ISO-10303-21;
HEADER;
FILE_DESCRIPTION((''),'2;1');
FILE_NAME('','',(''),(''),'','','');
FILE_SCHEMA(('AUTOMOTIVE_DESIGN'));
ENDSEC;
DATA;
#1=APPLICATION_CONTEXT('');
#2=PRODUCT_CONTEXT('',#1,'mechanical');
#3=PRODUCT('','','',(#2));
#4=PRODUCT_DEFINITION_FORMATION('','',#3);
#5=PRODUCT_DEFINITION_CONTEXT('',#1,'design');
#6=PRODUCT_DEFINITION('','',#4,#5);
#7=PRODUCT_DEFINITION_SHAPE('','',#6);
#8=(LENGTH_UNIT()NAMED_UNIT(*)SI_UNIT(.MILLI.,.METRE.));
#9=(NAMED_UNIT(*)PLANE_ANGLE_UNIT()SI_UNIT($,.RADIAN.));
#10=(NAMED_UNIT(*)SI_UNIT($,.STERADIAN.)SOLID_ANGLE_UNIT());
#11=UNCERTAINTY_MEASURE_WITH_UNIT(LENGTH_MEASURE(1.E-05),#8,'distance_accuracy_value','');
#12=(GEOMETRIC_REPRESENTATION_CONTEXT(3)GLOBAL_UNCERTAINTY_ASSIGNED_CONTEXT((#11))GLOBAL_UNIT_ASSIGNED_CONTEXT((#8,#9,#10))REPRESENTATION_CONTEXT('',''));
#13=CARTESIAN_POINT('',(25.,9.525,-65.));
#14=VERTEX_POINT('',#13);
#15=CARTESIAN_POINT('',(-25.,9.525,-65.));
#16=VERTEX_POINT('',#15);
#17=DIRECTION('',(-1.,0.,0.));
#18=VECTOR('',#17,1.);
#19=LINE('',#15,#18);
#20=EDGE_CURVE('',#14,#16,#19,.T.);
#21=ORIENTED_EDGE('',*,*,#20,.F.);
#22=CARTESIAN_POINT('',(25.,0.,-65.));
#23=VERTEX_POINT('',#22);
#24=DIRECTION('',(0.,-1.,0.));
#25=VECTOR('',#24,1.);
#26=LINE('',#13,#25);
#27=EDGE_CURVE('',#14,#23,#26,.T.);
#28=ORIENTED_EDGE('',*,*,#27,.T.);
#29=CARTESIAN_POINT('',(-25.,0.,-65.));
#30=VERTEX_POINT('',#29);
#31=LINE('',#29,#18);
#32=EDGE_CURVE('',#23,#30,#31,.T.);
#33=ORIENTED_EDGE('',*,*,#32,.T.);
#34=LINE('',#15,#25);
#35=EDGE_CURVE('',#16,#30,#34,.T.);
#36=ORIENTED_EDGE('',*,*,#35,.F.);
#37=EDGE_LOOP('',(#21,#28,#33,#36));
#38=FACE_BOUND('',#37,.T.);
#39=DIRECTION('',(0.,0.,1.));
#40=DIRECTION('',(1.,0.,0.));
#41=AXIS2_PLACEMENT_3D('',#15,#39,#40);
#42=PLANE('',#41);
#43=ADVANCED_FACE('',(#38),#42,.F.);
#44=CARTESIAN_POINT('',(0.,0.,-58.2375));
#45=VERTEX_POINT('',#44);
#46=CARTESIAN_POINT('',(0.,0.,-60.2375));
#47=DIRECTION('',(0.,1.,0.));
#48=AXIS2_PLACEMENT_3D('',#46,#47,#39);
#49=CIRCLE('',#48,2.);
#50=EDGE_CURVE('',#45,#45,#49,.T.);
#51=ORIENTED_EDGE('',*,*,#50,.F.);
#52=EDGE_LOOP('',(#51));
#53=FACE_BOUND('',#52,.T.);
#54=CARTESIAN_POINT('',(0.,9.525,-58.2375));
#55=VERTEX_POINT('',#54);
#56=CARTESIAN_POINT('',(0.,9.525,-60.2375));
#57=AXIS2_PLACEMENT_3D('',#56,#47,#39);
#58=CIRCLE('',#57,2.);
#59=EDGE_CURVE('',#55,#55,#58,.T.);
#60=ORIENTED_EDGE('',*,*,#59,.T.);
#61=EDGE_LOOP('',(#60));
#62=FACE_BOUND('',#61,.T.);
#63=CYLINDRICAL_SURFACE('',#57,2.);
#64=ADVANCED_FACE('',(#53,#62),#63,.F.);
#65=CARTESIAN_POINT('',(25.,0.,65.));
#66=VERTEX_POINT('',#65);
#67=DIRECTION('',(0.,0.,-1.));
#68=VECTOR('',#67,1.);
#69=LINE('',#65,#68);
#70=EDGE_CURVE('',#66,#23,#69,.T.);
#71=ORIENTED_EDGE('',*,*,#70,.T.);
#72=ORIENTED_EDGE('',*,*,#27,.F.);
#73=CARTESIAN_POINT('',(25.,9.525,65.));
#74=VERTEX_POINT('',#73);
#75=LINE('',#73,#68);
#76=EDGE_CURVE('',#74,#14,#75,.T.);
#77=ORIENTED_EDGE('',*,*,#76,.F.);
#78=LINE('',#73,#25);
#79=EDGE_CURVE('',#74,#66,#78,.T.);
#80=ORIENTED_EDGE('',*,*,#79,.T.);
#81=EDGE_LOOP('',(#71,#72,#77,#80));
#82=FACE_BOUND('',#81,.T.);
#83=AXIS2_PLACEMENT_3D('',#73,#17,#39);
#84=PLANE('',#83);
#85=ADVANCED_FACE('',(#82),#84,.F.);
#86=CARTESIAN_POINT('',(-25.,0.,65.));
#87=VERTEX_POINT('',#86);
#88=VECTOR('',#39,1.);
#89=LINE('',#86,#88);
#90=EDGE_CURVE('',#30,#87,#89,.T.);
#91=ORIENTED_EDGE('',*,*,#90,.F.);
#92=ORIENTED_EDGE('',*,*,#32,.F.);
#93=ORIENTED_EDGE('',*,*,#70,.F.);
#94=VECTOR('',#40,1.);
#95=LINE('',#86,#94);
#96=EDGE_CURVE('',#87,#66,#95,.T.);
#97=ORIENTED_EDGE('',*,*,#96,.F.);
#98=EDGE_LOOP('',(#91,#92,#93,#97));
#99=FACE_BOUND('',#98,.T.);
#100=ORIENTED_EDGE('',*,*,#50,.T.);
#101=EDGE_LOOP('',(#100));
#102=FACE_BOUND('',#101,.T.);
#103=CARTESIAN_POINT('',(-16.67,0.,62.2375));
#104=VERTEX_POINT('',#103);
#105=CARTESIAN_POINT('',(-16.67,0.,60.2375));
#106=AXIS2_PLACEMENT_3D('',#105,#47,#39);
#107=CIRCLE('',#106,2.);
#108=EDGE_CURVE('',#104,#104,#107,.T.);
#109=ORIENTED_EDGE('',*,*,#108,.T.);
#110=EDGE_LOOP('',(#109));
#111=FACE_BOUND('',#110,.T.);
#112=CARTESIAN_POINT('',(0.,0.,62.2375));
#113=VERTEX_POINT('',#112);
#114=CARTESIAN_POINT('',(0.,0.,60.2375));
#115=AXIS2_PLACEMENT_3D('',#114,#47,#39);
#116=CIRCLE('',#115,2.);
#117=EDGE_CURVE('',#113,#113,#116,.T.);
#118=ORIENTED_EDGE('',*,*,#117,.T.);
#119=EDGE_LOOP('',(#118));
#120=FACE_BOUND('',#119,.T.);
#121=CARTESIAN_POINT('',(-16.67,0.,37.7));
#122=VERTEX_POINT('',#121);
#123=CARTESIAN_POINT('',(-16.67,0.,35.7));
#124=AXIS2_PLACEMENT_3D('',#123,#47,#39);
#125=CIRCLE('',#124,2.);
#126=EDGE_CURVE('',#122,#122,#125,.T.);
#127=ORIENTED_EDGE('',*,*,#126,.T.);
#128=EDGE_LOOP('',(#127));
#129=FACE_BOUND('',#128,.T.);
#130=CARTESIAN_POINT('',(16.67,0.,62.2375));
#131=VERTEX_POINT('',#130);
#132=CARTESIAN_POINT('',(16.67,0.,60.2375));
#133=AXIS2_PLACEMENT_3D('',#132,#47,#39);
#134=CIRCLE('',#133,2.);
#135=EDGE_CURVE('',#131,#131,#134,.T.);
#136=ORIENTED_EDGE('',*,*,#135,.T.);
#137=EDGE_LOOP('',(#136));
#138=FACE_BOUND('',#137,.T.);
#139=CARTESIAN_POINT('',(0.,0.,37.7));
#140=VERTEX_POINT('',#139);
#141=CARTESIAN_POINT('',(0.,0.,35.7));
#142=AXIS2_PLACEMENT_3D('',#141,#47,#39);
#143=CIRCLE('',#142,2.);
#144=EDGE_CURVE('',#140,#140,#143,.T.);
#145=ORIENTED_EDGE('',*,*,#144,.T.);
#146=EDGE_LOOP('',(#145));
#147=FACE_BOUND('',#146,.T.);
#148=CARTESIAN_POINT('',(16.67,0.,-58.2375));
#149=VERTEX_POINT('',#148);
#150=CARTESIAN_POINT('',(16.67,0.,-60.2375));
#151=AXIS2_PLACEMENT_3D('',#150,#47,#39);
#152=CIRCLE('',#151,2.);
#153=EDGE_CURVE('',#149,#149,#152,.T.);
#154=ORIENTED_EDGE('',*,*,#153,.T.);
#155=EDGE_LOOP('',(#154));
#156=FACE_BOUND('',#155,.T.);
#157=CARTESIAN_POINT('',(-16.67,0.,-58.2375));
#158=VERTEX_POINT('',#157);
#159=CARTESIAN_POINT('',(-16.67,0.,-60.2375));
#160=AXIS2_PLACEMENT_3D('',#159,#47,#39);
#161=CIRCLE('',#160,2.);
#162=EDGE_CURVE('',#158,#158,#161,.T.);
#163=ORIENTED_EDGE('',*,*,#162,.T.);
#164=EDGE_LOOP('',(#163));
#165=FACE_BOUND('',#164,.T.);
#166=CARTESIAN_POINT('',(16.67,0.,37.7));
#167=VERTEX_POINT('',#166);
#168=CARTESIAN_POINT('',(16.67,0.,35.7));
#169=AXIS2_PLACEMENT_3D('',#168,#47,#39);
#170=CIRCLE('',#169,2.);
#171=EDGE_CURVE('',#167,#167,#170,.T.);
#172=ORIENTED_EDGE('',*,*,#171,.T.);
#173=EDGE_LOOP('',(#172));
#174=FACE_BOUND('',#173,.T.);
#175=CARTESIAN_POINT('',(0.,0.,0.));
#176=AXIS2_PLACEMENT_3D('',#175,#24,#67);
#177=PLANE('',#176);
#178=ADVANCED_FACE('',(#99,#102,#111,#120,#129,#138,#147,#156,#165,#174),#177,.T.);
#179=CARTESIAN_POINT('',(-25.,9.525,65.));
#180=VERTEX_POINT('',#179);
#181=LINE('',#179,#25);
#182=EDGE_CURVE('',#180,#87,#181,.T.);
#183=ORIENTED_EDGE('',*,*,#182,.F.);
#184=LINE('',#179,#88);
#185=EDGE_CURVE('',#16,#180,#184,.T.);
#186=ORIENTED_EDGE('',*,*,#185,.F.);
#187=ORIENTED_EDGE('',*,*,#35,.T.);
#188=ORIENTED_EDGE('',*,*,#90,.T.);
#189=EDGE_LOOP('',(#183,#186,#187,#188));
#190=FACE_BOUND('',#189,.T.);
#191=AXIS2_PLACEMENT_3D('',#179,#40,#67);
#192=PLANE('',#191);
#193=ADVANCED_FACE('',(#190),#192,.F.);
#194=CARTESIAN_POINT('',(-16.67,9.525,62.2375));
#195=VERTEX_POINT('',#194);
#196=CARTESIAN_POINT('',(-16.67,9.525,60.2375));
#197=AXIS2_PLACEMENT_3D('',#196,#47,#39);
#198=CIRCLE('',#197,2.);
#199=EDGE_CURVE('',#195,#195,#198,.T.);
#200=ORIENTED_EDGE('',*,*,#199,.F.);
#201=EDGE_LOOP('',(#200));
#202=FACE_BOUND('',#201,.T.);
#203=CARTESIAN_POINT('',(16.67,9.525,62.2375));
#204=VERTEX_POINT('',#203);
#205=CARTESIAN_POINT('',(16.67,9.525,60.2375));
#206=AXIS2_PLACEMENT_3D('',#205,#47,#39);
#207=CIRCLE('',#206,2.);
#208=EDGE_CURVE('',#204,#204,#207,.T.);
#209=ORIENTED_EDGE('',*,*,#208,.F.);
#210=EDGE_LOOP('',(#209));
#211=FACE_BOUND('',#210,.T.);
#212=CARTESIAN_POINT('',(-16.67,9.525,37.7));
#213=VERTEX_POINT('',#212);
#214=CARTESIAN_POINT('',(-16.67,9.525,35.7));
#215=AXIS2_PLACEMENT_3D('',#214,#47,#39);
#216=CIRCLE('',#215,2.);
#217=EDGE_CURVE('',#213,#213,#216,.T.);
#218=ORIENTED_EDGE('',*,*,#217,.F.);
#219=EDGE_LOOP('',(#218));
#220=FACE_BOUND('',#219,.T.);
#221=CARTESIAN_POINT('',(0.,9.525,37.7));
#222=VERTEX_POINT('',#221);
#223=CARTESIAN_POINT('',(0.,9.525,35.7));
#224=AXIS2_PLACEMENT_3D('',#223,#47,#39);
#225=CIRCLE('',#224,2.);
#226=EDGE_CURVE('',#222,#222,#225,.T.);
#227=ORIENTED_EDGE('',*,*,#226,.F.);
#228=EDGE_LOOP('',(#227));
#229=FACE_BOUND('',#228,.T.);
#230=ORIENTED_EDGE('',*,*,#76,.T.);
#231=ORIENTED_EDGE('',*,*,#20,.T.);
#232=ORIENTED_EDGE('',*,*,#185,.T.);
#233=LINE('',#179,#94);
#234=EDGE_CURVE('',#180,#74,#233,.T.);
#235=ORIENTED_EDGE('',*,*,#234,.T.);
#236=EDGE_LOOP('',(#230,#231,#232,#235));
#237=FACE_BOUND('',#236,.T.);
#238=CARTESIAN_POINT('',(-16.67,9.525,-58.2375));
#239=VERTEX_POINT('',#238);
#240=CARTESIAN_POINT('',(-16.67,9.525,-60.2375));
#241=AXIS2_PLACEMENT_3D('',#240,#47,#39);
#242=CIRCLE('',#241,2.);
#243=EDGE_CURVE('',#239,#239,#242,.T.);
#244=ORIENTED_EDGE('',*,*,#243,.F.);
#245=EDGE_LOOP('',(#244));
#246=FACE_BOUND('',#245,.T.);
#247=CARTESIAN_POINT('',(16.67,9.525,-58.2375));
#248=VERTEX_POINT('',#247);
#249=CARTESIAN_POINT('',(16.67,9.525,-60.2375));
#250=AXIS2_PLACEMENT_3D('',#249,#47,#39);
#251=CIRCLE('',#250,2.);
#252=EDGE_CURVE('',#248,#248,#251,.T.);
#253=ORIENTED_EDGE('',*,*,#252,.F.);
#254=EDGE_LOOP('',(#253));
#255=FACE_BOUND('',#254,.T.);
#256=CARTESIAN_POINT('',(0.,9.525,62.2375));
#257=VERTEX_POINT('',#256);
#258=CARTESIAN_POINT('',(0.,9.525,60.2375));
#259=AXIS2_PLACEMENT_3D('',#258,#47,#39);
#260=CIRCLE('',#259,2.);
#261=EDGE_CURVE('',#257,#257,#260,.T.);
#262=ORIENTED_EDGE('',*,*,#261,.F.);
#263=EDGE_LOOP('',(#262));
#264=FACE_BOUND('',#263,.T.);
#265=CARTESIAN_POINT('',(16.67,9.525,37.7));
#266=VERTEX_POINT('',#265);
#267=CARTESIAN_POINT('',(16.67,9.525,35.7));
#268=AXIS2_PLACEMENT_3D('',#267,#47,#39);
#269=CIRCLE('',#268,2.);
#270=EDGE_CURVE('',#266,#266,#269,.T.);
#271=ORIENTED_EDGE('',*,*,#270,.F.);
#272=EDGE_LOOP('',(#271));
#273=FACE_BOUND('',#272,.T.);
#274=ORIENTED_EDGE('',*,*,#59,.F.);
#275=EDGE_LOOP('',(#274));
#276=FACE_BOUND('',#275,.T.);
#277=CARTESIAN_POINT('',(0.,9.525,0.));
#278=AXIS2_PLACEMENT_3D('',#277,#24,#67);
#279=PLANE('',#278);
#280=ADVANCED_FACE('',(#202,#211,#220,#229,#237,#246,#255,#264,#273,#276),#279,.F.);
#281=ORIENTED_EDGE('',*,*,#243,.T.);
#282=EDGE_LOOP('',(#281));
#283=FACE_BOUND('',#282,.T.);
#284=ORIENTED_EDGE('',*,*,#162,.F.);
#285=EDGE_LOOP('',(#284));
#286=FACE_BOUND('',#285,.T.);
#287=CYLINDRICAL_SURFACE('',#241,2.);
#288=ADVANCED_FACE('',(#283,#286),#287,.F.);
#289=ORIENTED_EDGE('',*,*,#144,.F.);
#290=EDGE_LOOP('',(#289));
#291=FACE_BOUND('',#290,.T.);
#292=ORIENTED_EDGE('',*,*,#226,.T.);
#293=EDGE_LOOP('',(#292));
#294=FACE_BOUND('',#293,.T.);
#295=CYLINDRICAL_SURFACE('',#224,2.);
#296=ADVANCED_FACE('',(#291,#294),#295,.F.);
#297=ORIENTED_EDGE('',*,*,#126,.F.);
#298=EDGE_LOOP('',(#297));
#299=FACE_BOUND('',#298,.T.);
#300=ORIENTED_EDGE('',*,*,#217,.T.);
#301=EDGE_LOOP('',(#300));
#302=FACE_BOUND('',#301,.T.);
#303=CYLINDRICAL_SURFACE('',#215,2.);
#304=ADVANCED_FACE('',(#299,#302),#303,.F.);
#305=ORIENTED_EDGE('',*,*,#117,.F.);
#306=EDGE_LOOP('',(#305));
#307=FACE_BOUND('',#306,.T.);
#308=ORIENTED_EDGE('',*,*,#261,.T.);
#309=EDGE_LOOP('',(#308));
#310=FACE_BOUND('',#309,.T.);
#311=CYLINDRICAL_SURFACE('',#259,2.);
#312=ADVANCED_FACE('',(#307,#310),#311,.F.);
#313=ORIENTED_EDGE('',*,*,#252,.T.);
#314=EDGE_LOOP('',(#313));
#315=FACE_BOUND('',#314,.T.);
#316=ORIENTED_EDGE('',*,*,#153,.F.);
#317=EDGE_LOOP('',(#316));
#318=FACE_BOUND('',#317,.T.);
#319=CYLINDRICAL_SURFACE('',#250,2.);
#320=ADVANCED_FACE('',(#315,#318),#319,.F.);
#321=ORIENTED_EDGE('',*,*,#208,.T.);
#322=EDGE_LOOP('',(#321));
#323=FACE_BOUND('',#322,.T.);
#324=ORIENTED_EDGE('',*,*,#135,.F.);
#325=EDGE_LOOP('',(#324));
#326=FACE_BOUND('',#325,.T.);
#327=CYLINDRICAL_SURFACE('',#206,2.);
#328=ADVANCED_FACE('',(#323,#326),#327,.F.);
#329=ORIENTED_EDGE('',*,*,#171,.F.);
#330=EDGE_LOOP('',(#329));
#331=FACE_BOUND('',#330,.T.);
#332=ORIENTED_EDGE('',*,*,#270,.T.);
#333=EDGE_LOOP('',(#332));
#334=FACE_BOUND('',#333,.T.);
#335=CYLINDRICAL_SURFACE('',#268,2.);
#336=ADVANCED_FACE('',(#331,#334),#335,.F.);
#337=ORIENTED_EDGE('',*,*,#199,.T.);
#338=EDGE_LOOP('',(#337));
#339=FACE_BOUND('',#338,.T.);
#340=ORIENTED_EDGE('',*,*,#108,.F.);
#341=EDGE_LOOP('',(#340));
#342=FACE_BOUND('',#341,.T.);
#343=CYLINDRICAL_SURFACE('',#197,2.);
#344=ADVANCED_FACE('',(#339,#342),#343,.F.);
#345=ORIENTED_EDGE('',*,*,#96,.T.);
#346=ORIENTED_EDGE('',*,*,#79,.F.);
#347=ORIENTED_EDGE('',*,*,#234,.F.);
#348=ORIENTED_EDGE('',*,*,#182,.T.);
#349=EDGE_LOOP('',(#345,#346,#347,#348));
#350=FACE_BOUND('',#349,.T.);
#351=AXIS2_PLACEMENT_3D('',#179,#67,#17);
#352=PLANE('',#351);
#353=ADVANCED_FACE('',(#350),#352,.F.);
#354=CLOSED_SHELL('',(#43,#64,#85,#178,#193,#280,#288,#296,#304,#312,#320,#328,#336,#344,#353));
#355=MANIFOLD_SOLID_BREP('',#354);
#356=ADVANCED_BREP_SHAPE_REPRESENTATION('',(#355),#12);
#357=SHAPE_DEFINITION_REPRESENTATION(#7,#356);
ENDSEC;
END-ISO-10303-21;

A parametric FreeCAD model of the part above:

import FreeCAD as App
import Part
import Sketcher
from FreeCAD import Vector
Q = App.Units.Quantity


def add_polygon(sketch, points):
    """Adds a closed chain of lines whose ends are joined by coincident constraints."""
    first, n = sketch.GeometryCount, len(points)
    for a, b in zip(points, points[1:] + points[:1]):
        sketch.addGeometry(Part.LineSegment(App.Vector(*a, 0), App.Vector(*b, 0)), False)
    for i in range(n):
        sketch.addConstraint(Sketcher.Constraint("Coincident", first + i, 2, first + (i + 1) % n, 1))

doc = App.newDocument("Part")
params = doc.addObject("Spreadsheet::Sheet", "Params")
for row, (alias, value) in enumerate([
    ("sketch1_width", "50 mm"),
    ("sketch1_height", "130 mm"),
    ("pad1_length", "9.525 mm"),
    ("sketch2_diameter", "4 mm"),
    ("hole_diameter", "4 mm"),
], start=1):
    params.set(f"A{row}", alias)
    params.set(f"B{row}", "=" + value)
    params.setAlias(f"B{row}", alias)

body = doc.addObject("PartDesign::Body", "Body")

# Sketch on XZ plane
sketch1 = doc.addObject("Sketcher::SketchObject", "Sketch")
body.addObject(sketch1)
sketch1.AttachmentSupport = (doc.XZ_Plane, [""])
sketch1.MapMode = "FlatFace"
add_polygon(sketch1, [(-25, -65), (-25, 65), (25, 65), (25, -65)])  # lines 0-3
sketch1.addConstraint(Sketcher.Constraint("Vertical", 0))
sketch1.addConstraint(Sketcher.Constraint("Horizontal", 1))
sketch1.addConstraint(Sketcher.Constraint("Vertical", 2))
sketch1.addConstraint(Sketcher.Constraint("Horizontal", 3))
sketch1.addConstraint(Sketcher.Constraint("Symmetric", 0, 2, 2, 2, -1, 1))
sketch1.addConstraint(Sketcher.Constraint("DistanceX", 1, 1, 1, 2, Q("50 mm")))
sketch1.addConstraint(Sketcher.Constraint("DistanceY", 0, 1, 0, 2, Q("130 mm")))
sketch1.setExpression("Constraints[9]", "Params.sketch1_width")
sketch1.setExpression("Constraints[10]", "Params.sketch1_height")
pad1 = doc.addObject("PartDesign::Pad", "Pad")
body.addObject(pad1)
pad1.Profile = sketch1
pad1.setExpression("Length", "Params.pad1_length")
pad1.Reversed = True

# Sketch on XZ plane
sketch2 = doc.addObject("Sketcher::SketchObject", "Sketch001")
body.addObject(sketch2)
sketch2.AttachmentSupport = (doc.XZ_Plane, [""])
sketch2.MapMode = "FlatFace"
sketch2.AttachmentOffset = App.Placement(Vector(0, 0, -9.525), App.Rotation())
sketch2.addGeometry(Part.Circle(Vector(16.7, 60.2, 0), Vector(0, 0, 1), 2), False)
sketch2.addGeometry(Part.Circle(Vector(-16.7, -60.2, 0), Vector(0, 0, 1), 2), False)
sketch2.addGeometry(Part.Circle(Vector(0, -60.2, 0), Vector(0, 0, 1), 2), False)
sketch2.addGeometry(Part.Circle(Vector(16.7, -60.2, 0), Vector(0, 0, 1), 2), False)
sketch2.addGeometry(Part.Circle(Vector(16.7, 35.7, 0), Vector(0, 0, 1), 2), False)
sketch2.addGeometry(Part.Circle(Vector(0, 35.7, 0), Vector(0, 0, 1), 2), False)
sketch2.addGeometry(Part.Circle(Vector(-16.7, 35.7, 0), Vector(0, 0, 1), 2), False)
sketch2.addGeometry(Part.Circle(Vector(-16.7, 60.2, 0), Vector(0, 0, 1), 2), False)
sketch2.addGeometry(Part.Circle(Vector(0, 60.2, 0), Vector(0, 0, 1), 2), False)
sketch2.addConstraint(Sketcher.Constraint("Equal", 0, 1))
sketch2.addConstraint(Sketcher.Constraint("Equal", 1, 2))
sketch2.addConstraint(Sketcher.Constraint("Equal", 2, 3))
sketch2.addConstraint(Sketcher.Constraint("Equal", 3, 4))
sketch2.addConstraint(Sketcher.Constraint("Equal", 4, 5))
sketch2.addConstraint(Sketcher.Constraint("Equal", 5, 6))
sketch2.addConstraint(Sketcher.Constraint("Equal", 6, 7))
sketch2.addConstraint(Sketcher.Constraint("Equal", 7, 8))
sketch2.addConstraint(Sketcher.Constraint("Symmetric", 0, 3, 1, 3, -1, 1))
sketch2.addConstraint(Sketcher.Constraint("Symmetric", 3, 3, 7, 3, -1, 1))
sketch2.addConstraint(Sketcher.Constraint("Symmetric", 2, 3, 8, 3, -1, 1))
sketch2.addConstraint(Sketcher.Constraint("Symmetric", 1, 3, 3, 3, -2))
sketch2.addConstraint(Sketcher.Constraint("Symmetric", 4, 3, 6, 3, -2))
sketch2.addConstraint(Sketcher.Constraint("PointOnObject", 2, 3, -2))
sketch2.addConstraint(Sketcher.Constraint("PointOnObject", 5, 3, -2))
sketch2.addConstraint(Sketcher.Constraint("Horizontal", 1, 3, 2, 3))
sketch2.addConstraint(Sketcher.Constraint("Horizontal", 4, 3, 5, 3))
sketch2.addConstraint(Sketcher.Constraint("Vertical", 3, 3, 4, 3))
sketch2.addConstraint(Sketcher.Constraint("Diameter", 0, Q("4 mm")))
sketch2.addConstraint(Sketcher.Constraint("DistanceY", -1, 1, 4, 3, Q("35.7 mm")))
sketch2.addConstraint(Sketcher.Constraint("DistanceX", -1, 1, 0, 3, Q("16.67 mm")))
sketch2.addConstraint(Sketcher.Constraint("DistanceY", 1, 3, 0, 3, Q("120.475 mm")))
sketch2.setExpression("Constraints[18]", "Params.sketch2_diameter")
doc.recompute()
hole = doc.addObject("PartDesign::Hole", "Hole")
body.addObject(hole)
hole.Profile = sketch2
hole.ThreadType = "None"
hole.setExpression("Diameter", "Params.hole_diameter")
hole.DepthType = "ThroughAll"
hole.Reversed = True

doc.recompute()
